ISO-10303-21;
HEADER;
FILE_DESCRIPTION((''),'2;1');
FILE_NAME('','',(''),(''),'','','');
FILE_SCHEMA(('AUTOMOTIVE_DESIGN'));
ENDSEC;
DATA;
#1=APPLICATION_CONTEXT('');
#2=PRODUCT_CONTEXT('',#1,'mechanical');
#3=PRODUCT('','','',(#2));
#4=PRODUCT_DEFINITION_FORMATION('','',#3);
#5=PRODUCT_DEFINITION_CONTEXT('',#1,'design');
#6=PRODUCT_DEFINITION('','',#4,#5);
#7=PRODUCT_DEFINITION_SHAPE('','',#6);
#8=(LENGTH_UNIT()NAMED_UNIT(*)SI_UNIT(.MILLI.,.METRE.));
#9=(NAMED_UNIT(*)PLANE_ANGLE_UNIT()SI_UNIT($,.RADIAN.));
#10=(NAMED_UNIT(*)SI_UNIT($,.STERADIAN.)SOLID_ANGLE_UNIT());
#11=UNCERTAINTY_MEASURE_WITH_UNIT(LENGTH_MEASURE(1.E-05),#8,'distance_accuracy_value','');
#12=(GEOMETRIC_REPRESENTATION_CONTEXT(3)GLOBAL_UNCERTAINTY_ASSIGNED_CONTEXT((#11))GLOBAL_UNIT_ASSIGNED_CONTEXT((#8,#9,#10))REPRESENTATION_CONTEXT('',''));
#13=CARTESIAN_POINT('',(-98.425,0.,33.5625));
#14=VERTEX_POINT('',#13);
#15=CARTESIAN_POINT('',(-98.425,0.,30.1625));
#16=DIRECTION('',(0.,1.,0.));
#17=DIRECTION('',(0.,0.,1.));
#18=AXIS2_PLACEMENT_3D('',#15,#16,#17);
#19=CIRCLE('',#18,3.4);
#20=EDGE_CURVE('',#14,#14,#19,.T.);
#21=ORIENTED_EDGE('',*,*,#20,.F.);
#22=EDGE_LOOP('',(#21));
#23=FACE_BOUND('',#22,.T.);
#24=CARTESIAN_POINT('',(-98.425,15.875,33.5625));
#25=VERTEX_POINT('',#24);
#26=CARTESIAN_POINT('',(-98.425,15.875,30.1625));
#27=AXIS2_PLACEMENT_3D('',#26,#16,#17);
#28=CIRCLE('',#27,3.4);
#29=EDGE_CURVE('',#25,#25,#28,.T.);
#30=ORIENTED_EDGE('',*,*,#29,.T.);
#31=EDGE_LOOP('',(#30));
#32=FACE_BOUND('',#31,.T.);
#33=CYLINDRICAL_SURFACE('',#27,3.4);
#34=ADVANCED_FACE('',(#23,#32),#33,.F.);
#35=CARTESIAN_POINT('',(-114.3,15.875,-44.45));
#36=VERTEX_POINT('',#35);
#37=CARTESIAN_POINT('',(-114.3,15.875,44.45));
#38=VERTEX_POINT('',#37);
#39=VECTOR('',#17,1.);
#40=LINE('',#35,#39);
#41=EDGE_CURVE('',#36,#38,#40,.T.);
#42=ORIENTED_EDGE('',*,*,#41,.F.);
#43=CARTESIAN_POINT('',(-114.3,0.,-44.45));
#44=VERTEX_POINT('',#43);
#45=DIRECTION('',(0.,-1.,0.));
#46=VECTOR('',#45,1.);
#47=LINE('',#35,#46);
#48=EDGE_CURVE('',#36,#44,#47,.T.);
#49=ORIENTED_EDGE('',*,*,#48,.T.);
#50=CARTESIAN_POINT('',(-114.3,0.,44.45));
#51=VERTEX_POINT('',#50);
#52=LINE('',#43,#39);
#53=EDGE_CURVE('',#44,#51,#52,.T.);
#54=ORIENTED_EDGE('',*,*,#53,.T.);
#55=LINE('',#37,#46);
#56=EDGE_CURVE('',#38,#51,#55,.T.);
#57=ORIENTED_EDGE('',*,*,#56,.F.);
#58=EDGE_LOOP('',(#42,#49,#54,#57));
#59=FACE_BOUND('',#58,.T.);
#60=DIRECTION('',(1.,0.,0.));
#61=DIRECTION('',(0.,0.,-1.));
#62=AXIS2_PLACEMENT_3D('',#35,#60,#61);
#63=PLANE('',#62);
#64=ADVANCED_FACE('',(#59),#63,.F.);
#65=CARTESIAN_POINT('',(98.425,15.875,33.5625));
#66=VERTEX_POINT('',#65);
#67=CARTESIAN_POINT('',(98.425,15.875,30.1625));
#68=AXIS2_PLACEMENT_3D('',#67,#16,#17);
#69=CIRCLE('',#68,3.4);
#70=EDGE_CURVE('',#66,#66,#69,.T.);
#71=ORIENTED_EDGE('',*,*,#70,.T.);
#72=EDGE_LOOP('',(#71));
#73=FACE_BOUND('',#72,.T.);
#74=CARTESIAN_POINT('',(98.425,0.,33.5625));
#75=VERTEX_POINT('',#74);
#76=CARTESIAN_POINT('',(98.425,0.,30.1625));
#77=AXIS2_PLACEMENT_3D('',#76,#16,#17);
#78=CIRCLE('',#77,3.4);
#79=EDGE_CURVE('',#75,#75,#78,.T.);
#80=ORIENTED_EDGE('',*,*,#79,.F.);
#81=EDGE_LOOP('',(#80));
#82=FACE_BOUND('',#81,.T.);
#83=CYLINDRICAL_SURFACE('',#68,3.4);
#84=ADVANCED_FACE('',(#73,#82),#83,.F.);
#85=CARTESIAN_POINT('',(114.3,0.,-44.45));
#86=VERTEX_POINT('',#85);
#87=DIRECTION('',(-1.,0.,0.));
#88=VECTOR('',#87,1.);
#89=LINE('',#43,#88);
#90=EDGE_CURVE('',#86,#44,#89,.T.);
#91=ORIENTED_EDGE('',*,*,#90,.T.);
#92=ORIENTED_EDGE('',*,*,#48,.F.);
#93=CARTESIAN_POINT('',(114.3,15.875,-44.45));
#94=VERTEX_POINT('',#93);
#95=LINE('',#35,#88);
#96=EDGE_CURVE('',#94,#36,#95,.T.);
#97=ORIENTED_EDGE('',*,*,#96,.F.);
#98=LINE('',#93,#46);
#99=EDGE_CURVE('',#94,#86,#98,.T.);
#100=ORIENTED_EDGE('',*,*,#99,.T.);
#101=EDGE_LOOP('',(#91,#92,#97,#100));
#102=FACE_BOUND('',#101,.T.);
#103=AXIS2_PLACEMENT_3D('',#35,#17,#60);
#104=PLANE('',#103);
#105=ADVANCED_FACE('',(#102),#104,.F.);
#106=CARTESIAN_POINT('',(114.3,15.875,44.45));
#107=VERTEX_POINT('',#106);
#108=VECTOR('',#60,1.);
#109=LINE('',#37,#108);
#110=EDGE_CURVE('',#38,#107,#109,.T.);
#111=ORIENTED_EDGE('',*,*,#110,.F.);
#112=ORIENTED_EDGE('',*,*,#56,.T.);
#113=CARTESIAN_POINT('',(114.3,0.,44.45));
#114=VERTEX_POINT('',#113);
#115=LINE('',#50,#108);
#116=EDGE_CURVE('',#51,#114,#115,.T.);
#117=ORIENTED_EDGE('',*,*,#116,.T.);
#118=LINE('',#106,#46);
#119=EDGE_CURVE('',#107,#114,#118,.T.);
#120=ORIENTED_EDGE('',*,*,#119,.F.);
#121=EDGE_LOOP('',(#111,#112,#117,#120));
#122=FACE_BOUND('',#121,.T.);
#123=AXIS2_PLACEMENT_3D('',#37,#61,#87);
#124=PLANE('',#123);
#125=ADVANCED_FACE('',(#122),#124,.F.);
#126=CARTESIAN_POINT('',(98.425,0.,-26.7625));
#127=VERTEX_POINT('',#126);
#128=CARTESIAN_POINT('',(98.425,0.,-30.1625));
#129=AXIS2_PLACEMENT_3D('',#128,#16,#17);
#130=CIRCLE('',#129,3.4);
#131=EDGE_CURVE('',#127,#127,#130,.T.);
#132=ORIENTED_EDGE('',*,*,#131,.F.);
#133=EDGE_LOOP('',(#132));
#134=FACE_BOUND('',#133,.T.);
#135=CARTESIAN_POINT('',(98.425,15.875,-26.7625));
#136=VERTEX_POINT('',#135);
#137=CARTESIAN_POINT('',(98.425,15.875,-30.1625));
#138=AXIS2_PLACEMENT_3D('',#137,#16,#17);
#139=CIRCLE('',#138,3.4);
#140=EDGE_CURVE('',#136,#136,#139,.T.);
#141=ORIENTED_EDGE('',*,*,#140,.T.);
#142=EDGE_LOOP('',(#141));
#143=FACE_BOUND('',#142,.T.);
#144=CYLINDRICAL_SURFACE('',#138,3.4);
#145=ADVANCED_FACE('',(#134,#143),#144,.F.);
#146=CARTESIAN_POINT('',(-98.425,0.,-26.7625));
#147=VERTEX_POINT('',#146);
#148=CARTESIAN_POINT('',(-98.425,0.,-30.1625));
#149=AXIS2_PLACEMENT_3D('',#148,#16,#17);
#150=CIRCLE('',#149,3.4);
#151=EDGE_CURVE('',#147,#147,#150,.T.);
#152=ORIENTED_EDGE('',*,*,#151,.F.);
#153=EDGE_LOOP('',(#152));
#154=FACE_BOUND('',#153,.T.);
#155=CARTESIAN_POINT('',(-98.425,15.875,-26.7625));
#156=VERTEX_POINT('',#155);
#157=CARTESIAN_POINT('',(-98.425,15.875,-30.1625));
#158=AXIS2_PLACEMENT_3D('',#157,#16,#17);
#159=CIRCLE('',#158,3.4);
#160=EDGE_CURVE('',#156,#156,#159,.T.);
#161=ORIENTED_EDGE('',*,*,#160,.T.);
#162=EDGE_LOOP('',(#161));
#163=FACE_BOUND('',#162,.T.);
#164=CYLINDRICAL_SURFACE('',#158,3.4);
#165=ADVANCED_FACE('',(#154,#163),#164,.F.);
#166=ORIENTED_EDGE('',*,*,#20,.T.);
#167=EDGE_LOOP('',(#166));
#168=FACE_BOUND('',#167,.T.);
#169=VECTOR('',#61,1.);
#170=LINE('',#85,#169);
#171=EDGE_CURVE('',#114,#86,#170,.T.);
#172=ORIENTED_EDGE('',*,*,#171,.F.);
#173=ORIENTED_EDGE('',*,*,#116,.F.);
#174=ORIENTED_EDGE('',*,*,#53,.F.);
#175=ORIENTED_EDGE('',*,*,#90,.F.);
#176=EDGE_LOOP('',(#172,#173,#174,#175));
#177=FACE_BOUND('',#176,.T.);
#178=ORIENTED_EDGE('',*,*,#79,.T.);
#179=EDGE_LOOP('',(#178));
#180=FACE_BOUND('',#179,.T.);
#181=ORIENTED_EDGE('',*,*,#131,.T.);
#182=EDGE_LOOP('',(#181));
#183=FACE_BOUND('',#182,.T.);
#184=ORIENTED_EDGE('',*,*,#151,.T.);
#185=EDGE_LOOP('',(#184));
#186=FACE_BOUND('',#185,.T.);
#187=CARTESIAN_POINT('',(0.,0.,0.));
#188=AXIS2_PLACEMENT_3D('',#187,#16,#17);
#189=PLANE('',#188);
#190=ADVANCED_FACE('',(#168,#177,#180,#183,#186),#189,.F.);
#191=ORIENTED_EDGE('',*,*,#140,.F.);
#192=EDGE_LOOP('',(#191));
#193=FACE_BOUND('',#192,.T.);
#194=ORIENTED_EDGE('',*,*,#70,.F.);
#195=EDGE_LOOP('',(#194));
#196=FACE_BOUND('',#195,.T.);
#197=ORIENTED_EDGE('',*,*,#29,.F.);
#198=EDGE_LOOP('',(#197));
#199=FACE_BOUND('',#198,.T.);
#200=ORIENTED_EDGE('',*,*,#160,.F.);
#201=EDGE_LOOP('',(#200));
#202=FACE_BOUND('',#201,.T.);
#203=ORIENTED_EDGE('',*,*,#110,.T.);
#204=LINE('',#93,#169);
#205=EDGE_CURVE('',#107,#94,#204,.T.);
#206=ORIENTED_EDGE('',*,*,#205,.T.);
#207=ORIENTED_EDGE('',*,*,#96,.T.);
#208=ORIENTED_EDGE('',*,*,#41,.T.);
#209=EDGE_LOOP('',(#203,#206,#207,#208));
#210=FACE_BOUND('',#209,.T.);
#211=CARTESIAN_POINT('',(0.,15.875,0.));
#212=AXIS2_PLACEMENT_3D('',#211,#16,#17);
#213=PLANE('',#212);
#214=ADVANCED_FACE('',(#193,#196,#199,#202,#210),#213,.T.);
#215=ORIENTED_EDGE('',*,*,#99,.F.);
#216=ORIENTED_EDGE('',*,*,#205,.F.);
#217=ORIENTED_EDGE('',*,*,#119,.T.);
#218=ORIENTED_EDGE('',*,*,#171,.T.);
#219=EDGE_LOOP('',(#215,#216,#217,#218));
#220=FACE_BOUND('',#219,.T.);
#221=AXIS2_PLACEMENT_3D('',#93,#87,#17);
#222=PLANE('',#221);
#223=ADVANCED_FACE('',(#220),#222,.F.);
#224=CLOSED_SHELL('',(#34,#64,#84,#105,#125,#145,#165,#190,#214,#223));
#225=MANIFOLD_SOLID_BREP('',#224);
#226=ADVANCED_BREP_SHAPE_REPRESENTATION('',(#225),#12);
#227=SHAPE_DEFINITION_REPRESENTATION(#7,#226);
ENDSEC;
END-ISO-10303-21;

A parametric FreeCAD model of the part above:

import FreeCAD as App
import Part
import Sketcher
Q = App.Units.Quantity

doc = App.newDocument("Part")
body = doc.addObject("PartDesign::Body", "Body")

# Sketch on XZ plane
sketch1 = body.newObject("Sketcher::SketchObject", "Sketch")
sketch1.AttachmentSupport = (doc.getObject("XZ_Plane"), [""])
sketch1.MapMode = "FlatFace"
sketch1.addGeometry(Part.LineSegment(App.Vector(-114, -44, 0), App.Vector(-114, 44, 0)), False)
sketch1.addGeometry(Part.LineSegment(App.Vector(-114, 44, 0), App.Vector(114, 44, 0)), False)
sketch1.addGeometry(Part.LineSegment(App.Vector(114, 44, 0), App.Vector(114, -44, 0)), False)
sketch1.addGeometry(Part.LineSegment(App.Vector(114, -44, 0), App.Vector(-114, -44, 0)), False)
sketch1.addConstraint(Sketcher.Constraint("Coincident", 0, 2, 1, 1))
sketch1.addConstraint(Sketcher.Constraint("Coincident", 1, 2, 2, 1))
sketch1.addConstraint(Sketcher.Constraint("Coincident", 2, 2, 3, 1))
sketch1.addConstraint(Sketcher.Constraint("Coincident", 3, 2, 0, 1))
sketch1.addConstraint(Sketcher.Constraint("Vertical", 0))
sketch1.addConstraint(Sketcher.Constraint("Horizontal", 1))
sketch1.addConstraint(Sketcher.Constraint("Vertical", 2))
sketch1.addConstraint(Sketcher.Constraint("Horizontal", 3))
sketch1.addConstraint(Sketcher.Constraint("Symmetric", 0, 2, 2, 2, -1, 1))
sketch1.addConstraint(Sketcher.Constraint("DistanceX", 1, 1, 1, 2, Q("9 in")))
sketch1.addConstraint(Sketcher.Constraint("DistanceY", 0, 1, 0, 2, Q("3.5 in")))
pad1 = body.newObject("PartDesign::Pad", "Pad")
pad1.Profile = sketch1
pad1.Length = Q("0.625 in")
pad1.Reversed = True

# Sketch on XZ plane
sketch2 = body.newObject("Sketcher::SketchObject", "Sketch001")
sketch2.AttachmentSupport = (doc.getObject("XZ_Plane"), [""])
sketch2.MapMode = "FlatFace"
sketch2.AttachmentOffset = App.Placement(App.Vector(0, 0, -0.625 * 25.4), App.Rotation())
sketch2.addGeometry(Part.Circle(App.Vector(-98.4, 30.2, 0), App.Vector(0, 0, 1), 3.4), False)
sketch2.addGeometry(Part.Circle(App.Vector(-98.4, -30.2, 0), App.Vector(0, 0, 1), 3.4), False)
sketch2.addGeometry(Part.Circle(App.Vector(98.4, -30.2, 0), App.Vector(0, 0, 1), 3.4), False)
sketch2.addGeometry(Part.Circle(App.Vector(98.4, 30.2, 0), App.Vector(0, 0, 1), 3.4), False)
sketch2.addConstraint(Sketcher.Constraint("Equal", 0, 1))
sketch2.addConstraint(Sketcher.Constraint("Equal", 1, 2))
sketch2.addConstraint(Sketcher.Constraint("Equal", 2, 3))
sketch2.addConstraint(Sketcher.Constraint("Symmetric", 0, 3, 2, 3, -1, 1))
sketch2.addConstraint(Sketcher.Constraint("Symmetric", 1, 3, 3, 3, -1, 1))
sketch2.addConstraint(Sketcher.Constraint("Symmetric", 1, 3, 2, 3, -2))
sketch2.addConstraint(Sketcher.Constraint("Diameter", 0, Q("6.8 mm")))
sketch2.addConstraint(Sketcher.Constraint("DistanceX", 1, 3, 2, 3, Q("7.75 in")))
sketch2.addConstraint(Sketcher.Constraint("DistanceY", -1, 1, 0, 3, Q("1.1875 in")))
doc.recompute()
hole = body.newObject("PartDesign::Hole", "Hole")
hole.Profile = sketch2
hole.ThreadType = "None"
hole.Diameter = 6.8
hole.DepthType = "Dimension"
hole.Depth = Q("0.778 in")
hole.DrillPoint = "Angled"
hole.DrillPointAngle = 118
hole.Reversed = True

doc.recompute()
